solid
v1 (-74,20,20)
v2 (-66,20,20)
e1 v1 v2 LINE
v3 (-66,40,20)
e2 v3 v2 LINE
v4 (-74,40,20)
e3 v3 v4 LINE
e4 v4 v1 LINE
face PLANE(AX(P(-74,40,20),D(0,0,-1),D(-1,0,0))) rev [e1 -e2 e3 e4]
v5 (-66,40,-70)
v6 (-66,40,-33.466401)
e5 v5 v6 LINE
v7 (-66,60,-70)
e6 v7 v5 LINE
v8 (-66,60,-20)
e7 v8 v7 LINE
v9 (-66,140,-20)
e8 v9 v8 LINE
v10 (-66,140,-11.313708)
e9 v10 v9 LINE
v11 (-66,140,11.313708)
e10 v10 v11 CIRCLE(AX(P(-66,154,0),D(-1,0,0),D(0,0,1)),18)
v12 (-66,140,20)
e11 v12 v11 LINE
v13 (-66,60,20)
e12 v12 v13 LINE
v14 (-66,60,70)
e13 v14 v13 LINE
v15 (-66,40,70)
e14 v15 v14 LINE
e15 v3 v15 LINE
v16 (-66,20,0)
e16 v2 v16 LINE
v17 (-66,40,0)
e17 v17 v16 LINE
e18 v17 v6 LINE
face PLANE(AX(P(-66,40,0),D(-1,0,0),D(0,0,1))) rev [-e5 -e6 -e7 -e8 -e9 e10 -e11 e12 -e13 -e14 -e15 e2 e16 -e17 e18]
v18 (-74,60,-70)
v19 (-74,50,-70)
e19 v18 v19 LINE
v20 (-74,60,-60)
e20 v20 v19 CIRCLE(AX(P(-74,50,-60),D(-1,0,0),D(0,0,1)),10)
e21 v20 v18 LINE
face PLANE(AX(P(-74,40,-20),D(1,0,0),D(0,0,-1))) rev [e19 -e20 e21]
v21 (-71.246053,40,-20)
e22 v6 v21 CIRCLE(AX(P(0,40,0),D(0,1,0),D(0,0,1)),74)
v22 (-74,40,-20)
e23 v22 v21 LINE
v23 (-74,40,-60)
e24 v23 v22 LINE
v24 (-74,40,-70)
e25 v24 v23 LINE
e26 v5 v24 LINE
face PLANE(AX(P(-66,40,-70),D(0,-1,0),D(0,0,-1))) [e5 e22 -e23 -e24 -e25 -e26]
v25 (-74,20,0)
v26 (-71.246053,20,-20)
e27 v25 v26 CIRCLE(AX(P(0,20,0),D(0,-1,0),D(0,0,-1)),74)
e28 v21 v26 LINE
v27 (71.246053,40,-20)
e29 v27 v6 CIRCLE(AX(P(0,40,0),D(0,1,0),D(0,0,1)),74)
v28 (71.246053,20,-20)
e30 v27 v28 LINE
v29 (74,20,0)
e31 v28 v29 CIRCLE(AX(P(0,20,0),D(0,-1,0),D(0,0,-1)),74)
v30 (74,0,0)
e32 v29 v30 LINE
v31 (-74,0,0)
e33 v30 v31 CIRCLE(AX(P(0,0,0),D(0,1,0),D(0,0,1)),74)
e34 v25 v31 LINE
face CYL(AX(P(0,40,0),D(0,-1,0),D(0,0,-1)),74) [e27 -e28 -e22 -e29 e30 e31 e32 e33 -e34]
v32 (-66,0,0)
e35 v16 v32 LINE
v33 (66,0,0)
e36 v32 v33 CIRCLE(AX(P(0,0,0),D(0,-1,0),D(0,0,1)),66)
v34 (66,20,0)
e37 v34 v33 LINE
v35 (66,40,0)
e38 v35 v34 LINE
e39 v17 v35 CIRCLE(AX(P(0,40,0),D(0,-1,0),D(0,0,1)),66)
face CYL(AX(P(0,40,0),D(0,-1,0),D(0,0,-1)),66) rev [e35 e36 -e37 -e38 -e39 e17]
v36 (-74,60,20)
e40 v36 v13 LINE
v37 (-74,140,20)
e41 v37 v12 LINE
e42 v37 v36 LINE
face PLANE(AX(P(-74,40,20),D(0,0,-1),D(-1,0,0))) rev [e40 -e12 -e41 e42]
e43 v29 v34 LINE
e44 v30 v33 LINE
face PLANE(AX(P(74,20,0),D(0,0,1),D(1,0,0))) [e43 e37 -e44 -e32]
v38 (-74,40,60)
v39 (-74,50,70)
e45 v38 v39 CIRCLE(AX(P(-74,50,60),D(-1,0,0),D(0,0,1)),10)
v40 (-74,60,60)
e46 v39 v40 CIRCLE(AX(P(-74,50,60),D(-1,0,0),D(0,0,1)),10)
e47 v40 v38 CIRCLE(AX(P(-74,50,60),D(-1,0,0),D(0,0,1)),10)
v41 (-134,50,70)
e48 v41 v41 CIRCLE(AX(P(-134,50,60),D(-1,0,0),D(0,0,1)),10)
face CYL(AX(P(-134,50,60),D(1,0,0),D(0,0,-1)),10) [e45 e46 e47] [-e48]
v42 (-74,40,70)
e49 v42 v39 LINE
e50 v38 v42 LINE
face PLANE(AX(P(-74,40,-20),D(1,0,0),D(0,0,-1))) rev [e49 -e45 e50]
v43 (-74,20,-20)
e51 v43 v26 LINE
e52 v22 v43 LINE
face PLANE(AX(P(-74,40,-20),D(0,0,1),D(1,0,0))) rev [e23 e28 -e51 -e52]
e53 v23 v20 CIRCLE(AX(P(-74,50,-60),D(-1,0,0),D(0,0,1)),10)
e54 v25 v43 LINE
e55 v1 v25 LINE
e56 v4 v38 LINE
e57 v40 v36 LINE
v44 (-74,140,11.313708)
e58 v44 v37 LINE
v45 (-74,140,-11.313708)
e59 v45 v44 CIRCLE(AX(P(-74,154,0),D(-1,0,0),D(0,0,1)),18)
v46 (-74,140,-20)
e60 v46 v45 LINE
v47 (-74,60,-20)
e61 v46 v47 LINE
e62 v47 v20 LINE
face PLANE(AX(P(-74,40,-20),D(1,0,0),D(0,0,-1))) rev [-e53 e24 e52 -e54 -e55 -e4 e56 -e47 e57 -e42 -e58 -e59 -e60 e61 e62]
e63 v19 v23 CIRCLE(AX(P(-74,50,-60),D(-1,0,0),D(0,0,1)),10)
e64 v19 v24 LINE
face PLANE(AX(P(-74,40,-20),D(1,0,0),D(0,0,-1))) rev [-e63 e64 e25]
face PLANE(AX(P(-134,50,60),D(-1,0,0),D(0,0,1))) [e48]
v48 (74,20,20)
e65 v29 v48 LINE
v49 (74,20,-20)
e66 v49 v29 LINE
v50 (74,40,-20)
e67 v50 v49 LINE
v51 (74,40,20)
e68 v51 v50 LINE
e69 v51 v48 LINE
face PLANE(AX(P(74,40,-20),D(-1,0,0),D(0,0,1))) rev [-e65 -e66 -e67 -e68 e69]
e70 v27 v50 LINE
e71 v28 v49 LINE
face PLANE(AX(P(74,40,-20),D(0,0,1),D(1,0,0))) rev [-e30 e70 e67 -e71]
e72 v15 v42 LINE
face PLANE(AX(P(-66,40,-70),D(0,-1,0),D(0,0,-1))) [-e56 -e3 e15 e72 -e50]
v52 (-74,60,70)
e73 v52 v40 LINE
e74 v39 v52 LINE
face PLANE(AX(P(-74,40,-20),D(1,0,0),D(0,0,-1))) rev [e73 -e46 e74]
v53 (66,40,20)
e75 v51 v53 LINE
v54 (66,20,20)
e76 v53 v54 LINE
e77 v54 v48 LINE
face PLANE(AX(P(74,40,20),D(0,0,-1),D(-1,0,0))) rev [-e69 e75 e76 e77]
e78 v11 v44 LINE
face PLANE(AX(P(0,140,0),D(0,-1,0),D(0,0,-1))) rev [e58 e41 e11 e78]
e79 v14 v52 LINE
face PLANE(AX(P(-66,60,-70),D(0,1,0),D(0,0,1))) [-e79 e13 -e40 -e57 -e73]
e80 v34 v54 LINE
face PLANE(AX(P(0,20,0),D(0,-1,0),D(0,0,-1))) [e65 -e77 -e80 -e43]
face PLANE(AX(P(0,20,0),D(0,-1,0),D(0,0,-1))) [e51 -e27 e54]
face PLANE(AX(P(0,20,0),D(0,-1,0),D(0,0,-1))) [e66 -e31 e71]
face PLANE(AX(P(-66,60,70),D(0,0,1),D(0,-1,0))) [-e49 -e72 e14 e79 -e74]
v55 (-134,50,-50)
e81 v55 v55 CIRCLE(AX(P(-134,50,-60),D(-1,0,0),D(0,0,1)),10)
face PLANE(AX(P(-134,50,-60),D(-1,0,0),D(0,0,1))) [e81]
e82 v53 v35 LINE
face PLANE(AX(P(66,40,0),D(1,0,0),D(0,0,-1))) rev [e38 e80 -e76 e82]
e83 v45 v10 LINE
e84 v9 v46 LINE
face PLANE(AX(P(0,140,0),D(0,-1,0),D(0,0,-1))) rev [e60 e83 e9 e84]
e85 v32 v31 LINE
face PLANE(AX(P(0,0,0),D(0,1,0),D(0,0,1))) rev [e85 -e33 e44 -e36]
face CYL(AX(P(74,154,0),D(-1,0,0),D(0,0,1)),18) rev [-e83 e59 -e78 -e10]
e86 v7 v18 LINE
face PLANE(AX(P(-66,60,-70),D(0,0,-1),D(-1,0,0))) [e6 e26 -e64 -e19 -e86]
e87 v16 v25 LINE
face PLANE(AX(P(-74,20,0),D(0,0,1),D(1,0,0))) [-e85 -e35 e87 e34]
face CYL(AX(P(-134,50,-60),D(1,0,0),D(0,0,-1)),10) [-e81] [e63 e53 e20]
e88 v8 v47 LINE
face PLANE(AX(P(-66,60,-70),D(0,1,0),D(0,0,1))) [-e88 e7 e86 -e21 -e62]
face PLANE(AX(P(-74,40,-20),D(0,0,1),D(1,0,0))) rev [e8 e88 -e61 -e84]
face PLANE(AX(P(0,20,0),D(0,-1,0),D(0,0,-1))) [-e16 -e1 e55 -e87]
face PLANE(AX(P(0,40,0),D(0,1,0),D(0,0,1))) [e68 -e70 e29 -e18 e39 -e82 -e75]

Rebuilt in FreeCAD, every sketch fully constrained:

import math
import FreeCAD as App
import Part
import Sketcher

V = App.Vector

doc = App.newDocument("Part")
body = doc.addObject("PartDesign::Body", "Body")

# Sketch on XZ plane
sketch1 = body.newObject("Sketcher::SketchObject", "Sketch")
sketch1.AttachmentSupport = (doc.getObject("XZ_Plane"), [""])
sketch1.MapMode = "FlatFace"
sketch1.addGeometry([
    Part.LineSegment(V(-71.246053, -20, 0), V(-74, -20, 0)),  # 0
    Part.LineSegment(V(-74, -20, 0), V(-74, 20, 0)),  # 1
    Part.LineSegment(V(-74, 20, 0), V(-66, 20, 0)),  # 2
    Part.LineSegment(V(-66, 20, 0), V(-66, 0, 0)),  # 3
    Part.ArcOfCircle(Part.Circle(V(0, 0, 0), V(0, 0, 1), 66), math.radians(180), math.radians(360)),  # 4
    Part.LineSegment(V(66, 0, 0), V(66, 20, 0)),  # 5
    Part.LineSegment(V(66, 20, 0), V(74, 20, 0)),  # 6
    Part.LineSegment(V(74, 20, 0), V(74, -20, 0)),  # 7
    Part.LineSegment(V(74, -20, 0), V(71.246053, -20, 0)),  # 8
    Part.ArcOfCircle(Part.Circle(V(0, 0, 0), V(0, 0, 1), 74), math.radians(-164.31965), math.radians(-15.68035)),  # 9
], False)
sketch1.addConstraint([
    Sketcher.Constraint("Coincident", 0, 2, 1, 1),
    Sketcher.Constraint("Coincident", 1, 2, 2, 1),
    Sketcher.Constraint("Coincident", 2, 2, 3, 1),
    Sketcher.Constraint("Tangent", 3, 2, 4, 1),
    Sketcher.Constraint("Tangent", 4, 2, 5, 1),
    Sketcher.Constraint("Coincident", 5, 2, 6, 1),
    Sketcher.Constraint("Coincident", 6, 2, 7, 1),
    Sketcher.Constraint("Coincident", 7, 2, 8, 1),
    Sketcher.Constraint("Coincident", 8, 2, 9, 2),
    Sketcher.Constraint("Coincident", 9, 1, 0, 1),
    Sketcher.Constraint("Horizontal", 0),
    Sketcher.Constraint("Vertical", 1),
    Sketcher.Constraint("Horizontal", 2),
    Sketcher.Constraint("Vertical", 3),
    Sketcher.Constraint("Vertical", 5),
    Sketcher.Constraint("Horizontal", 6),
    Sketcher.Constraint("Vertical", 7),
    Sketcher.Constraint("Horizontal", 8),
    Sketcher.Constraint("Coincident", 4, 3, -1, 1),
    Sketcher.Constraint("Coincident", 9, 3, -1, 1),
    Sketcher.Constraint("Symmetric", 0, 2, 6, 2, -1, 1),
    Sketcher.Constraint("Horizontal", 2, 2, 5, 2),
    Sketcher.Constraint("Horizontal", 0, 2, 7, 2),
    Sketcher.Constraint("Radius", 4, 66.0),
    Sketcher.Constraint("Radius", 9, 74.0),
    Sketcher.Constraint("DistanceX", 2, 1, 2, 2, 8.0),
    Sketcher.Constraint("DistanceY", 1, 1, 1, 2, 40.0),
])
pad1 = body.newObject("PartDesign::Pad", "Pad")
pad1.Profile = sketch1
pad1.Length = 40
pad1.Reversed = True

# Sketch on XZ plane
sketch2 = body.newObject("Sketcher::SketchObject", "Sketch001")
sketch2.AttachmentSupport = (doc.getObject("XZ_Plane"), [""])
sketch2.MapMode = "FlatFace"
sketch2.AttachmentOffset = App.Placement(V(0, 0, -40), App.Rotation())
sketch2.addGeometry([
    Part.LineSegment(V(-74, -20, 0), V(-74, 20, 0)),  # 0
    Part.LineSegment(V(-74, 20, 0), V(-66, 20, 0)),  # 1
    Part.LineSegment(V(-66, 20, 0), V(-66, -20, 0)),  # 2
    Part.LineSegment(V(-66, -20, 0), V(-74, -20, 0)),  # 3
    Part.LineSegment(V(66, -20, 0), V(66, 20, 0)),  # 4
    Part.LineSegment(V(66, 20, 0), V(74, 20, 0)),  # 5
    Part.LineSegment(V(74, 20, 0), V(74, -20, 0)),  # 6
    Part.LineSegment(V(74, -20, 0), V(66, -20, 0)),  # 7
], False)
sketch2.addConstraint([
    Sketcher.Constraint("Coincident", 0, 2, 1, 1),
    Sketcher.Constraint("Coincident", 1, 2, 2, 1),
    Sketcher.Constraint("Coincident", 2, 2, 3, 1),
    Sketcher.Constraint("Coincident", 3, 2, 0, 1),
    Sketcher.Constraint("Coincident", 4, 2, 5, 1),
    Sketcher.Constraint("Coincident", 5, 2, 6, 1),
    Sketcher.Constraint("Coincident", 6, 2, 7, 1),
    Sketcher.Constraint("Coincident", 7, 2, 4, 1),
    Sketcher.Constraint("Vertical", 0),
    Sketcher.Constraint("Horizontal", 1),
    Sketcher.Constraint("Vertical", 2),
    Sketcher.Constraint("Horizontal", 3),
    Sketcher.Constraint("Vertical", 4),
    Sketcher.Constraint("Horizontal", 5),
    Sketcher.Constraint("Vertical", 6),
    Sketcher.Constraint("Horizontal", 7),
    Sketcher.Constraint("Symmetric", 2, 2, 4, 2, -1, 1),
    Sketcher.Constraint("Symmetric", 0, 2, 6, 2, -1, 1),
    Sketcher.Constraint("Horizontal", 1, 2, 4, 2),
    Sketcher.Constraint("DistanceX", 1, 1, 1, 2, 8.0),
    Sketcher.Constraint("DistanceY", 0, 1, 0, 2, 40.0),
    Sketcher.Constraint("DistanceX", 0, 2, -1, 1, 74.0),
])
pad2 = body.newObject("PartDesign::Pad", "Pad001")
pad2.Profile = sketch2
pad2.Length = 100
pad2.Reversed = True

# Sketch on YZ plane
sketch3 = body.newObject("Sketcher::SketchObject", "Sketch002")
sketch3.AttachmentSupport = (doc.getObject("YZ_Plane"), [""])
sketch3.MapMode = "FlatFace"
sketch3.AttachmentOffset = App.Placement(V(0, 0, -74), App.Rotation())
sketch3.addGeometry(Part.Circle(V(154, 0, 0), V(0, 0, 1), 18), False)
sketch3.addConstraint([
    Sketcher.Constraint("PointOnObject", 0, 3, -1),
    Sketcher.Constraint("Diameter", 0, 36.0),
    Sketcher.Constraint("DistanceX", -1, 1, 0, 3, 154.0),
])
pocket1 = body.newObject("PartDesign::Pocket", "Pocket")
pocket1.Profile = sketch3
pocket1.Type = "ThroughAll"
pocket1.Reversed = True

# Sketch on YZ plane
sketch4 = body.newObject("Sketcher::SketchObject", "Sketch003")
sketch4.AttachmentSupport = (doc.getObject("YZ_Plane"), [""])
sketch4.MapMode = "FlatFace"
sketch4.AttachmentOffset = App.Placement(V(0, 0, 74), App.Rotation())
sketch4.addGeometry([
    Part.LineSegment(V(155.014953, 67.007662, 0), V(40, 67.007662, 0)),
    Part.LineSegment(V(40, 67.007662, 0), V(40, -20, 0)),
    Part.LineSegment(V(40, -20, 0), V(155.014953, -20, 0)),
    Part.LineSegment(V(155.014953, -20, 0), V(155.014953, 67.007662, 0)),
], False)
sketch4.addConstraint([
    Sketcher.Constraint("Coincident", 0, 2, 1, 1),
    Sketcher.Constraint("Coincident", 1, 2, 2, 1),
    Sketcher.Constraint("Coincident", 2, 2, 3, 1),
    Sketcher.Constraint("Coincident", 3, 2, 0, 1),
    Sketcher.Constraint("Horizontal", 0),
    Sketcher.Constraint("Vertical", 1),
    Sketcher.Constraint("Horizontal", 2),
    Sketcher.Constraint("Vertical", 3),
    Sketcher.Constraint("DistanceX", -1, 1, 0, 2, 40.0),
    Sketcher.Constraint("DistanceY", 1, 2, -1, 1, 20.0),
    Sketcher.Constraint("DistanceY", 1, 2, 1, 1, 87.007662),
    Sketcher.Constraint("DistanceX", 0, 2, 0, 1, 115.014953),
])
pocket2 = body.newObject("PartDesign::Pocket", "Pocket001")
pocket2.Profile = sketch4
pocket2.Length = 10

# Sketch on XZ plane
sketch5 = body.newObject("Sketcher::SketchObject", "Sketch004")
sketch5.AttachmentSupport = (doc.getObject("XZ_Plane"), [""])
sketch5.MapMode = "FlatFace"
sketch5.addGeometry([
    Part.Circle(V(0, 0, 0), V(0, 0, 1), 85.063361),  # 0
    Part.LineSegment(V(-66, 20, 0), V(-71.246053, 20, 0)),  # 1
    Part.ArcOfCircle(Part.Circle(V(0, 0, 0), V(0, 0, 1), 74), math.radians(15.68035), math.radians(164.31965)),  # 2
    Part.LineSegment(V(71.246053, 20, 0), V(66, 20, 0)),  # 3
    Part.LineSegment(V(66, 20, 0), V(66, 0, 0)),  # 4
    Part.LineSegment(V(66, 0, 0), V(74, 0, 0)),  # 5
    Part.ArcOfCircle(Part.Circle(V(0, 0, 0), V(0, 0, 1), 74), math.radians(180), math.radians(360)),  # 6
    Part.LineSegment(V(-74, 0, 0), V(-66, 0, 0)),  # 7
    Part.LineSegment(V(-66, 0, 0), V(-66, 20, 0)),  # 8
], False)
sketch5.addConstraint([
    Sketcher.Constraint("Coincident", 1, 2, 2, 2),
    Sketcher.Constraint("Coincident", 2, 1, 3, 1),
    Sketcher.Constraint("Coincident", 3, 2, 4, 1),
    Sketcher.Constraint("Coincident", 4, 2, 5, 1),
    Sketcher.Constraint("Coincident", 5, 2, 6, 2),
    Sketcher.Constraint("Coincident", 6, 1, 7, 1),
    Sketcher.Constraint("Coincident", 7, 2, 8, 1),
    Sketcher.Constraint("Coincident", 8, 2, 1, 1),
    Sketcher.Constraint("Horizontal", 1),
    Sketcher.Constraint("Horizontal", 3),
    Sketcher.Constraint("Vertical", 4),
    Sketcher.Constraint("Horizontal", 5),
    Sketcher.Constraint("Horizontal", 7),
    Sketcher.Constraint("Vertical", 8),
    Sketcher.Constraint("Coincident", 0, 3, -1, 1),
    Sketcher.Constraint("Coincident", 2, 3, -1, 1),
    Sketcher.Constraint("Coincident", 6, 3, -1, 1),
    Sketcher.Constraint("Equal", 2, 6),
    Sketcher.Constraint("Symmetric", 4, 2, 7, 2, -1, 1),
    Sketcher.Constraint("PointOnObject", 4, 2, -1),
    Sketcher.Constraint("Horizontal", 1, 2, 2, 1),
    Sketcher.Constraint("Radius", 2, 74.0),
    Sketcher.Constraint("DistanceX", 5, 1, 5, 2, 8.0),
    Sketcher.Constraint("DistanceY", 4, 2, 4, 1, 20.0),
    Sketcher.Constraint("Diameter", 0, 170.126722),
])
pocket3 = body.newObject("PartDesign::Pocket", "Pocket002")
pocket3.Profile = sketch5
pocket3.Length = 20

# Sketch on YZ plane
sketch6 = body.newObject("Sketcher::SketchObject", "Sketch005")
sketch6.AttachmentSupport = (doc.getObject("YZ_Plane"), [""])
sketch6.MapMode = "FlatFace"
sketch6.AttachmentOffset = App.Placement(V(0, 0, -74), App.Rotation())
sketch6.addGeometry([
    Part.LineSegment(V(60, -70, 0), V(40, -70, 0)),
    Part.LineSegment(V(40, -70, 0), V(40, 70, 0)),
    Part.LineSegment(V(40, 70, 0), V(60, 70, 0)),
    Part.LineSegment(V(60, 70, 0), V(60, -70, 0)),
], False)
sketch6.addConstraint([
    Sketcher.Constraint("Coincident", 0, 2, 1, 1),
    Sketcher.Constraint("Coincident", 1, 2, 2, 1),
    Sketcher.Constraint("Coincident", 2, 2, 3, 1),
    Sketcher.Constraint("Coincident", 3, 2, 0, 1),
    Sketcher.Constraint("Horizontal", 0),
    Sketcher.Constraint("Vertical", 1),
    Sketcher.Constraint("Horizontal", 2),
    Sketcher.Constraint("Vertical", 3),
    Sketcher.Constraint("DistanceX", 0, 2, 0, 1, 20.0),
    Sketcher.Constraint("DistanceY", 1, 1, 1, 2, 140.0),
    Sketcher.Constraint("DistanceX", -1, 1, 0, 2, 40.0),
    Sketcher.Constraint("DistanceY", 0, 2, -1, 1, 70.0),
])
pad3 = body.newObject("PartDesign::Pad", "Pad002")
pad3.Profile = sketch6
pad3.Length = 8

# Sketch on YZ plane
sketch7 = body.newObject("Sketcher::SketchObject", "Sketch006")
sketch7.AttachmentSupport = (doc.getObject("YZ_Plane"), [""])
sketch7.MapMode = "FlatFace"
sketch7.AttachmentOffset = App.Placement(V(0, 0, -74), App.Rotation())
sketch7.addGeometry([
    Part.Circle(V(50, -60, 0), V(0, 0, 1), 10),
    Part.Circle(V(50, 60, 0), V(0, 0, 1), 10),
], False)
sketch7.addConstraint([
    Sketcher.Constraint("Equal", 0, 1),
    Sketcher.Constraint("Symmetric", 0, 3, 1, 3, -1),
    Sketcher.Constraint("Diameter", 0, 20.0),
    Sketcher.Constraint("DistanceX", -1, 1, 0, 3, 50.0),
    Sketcher.Constraint("DistanceY", 0, 3, -1, 1, 60.0),
])
pad4 = body.newObject("PartDesign::Pad", "Pad003")
pad4.Profile = sketch7
pad4.Length = 60
pad4.Reversed = True

doc.recompute()
